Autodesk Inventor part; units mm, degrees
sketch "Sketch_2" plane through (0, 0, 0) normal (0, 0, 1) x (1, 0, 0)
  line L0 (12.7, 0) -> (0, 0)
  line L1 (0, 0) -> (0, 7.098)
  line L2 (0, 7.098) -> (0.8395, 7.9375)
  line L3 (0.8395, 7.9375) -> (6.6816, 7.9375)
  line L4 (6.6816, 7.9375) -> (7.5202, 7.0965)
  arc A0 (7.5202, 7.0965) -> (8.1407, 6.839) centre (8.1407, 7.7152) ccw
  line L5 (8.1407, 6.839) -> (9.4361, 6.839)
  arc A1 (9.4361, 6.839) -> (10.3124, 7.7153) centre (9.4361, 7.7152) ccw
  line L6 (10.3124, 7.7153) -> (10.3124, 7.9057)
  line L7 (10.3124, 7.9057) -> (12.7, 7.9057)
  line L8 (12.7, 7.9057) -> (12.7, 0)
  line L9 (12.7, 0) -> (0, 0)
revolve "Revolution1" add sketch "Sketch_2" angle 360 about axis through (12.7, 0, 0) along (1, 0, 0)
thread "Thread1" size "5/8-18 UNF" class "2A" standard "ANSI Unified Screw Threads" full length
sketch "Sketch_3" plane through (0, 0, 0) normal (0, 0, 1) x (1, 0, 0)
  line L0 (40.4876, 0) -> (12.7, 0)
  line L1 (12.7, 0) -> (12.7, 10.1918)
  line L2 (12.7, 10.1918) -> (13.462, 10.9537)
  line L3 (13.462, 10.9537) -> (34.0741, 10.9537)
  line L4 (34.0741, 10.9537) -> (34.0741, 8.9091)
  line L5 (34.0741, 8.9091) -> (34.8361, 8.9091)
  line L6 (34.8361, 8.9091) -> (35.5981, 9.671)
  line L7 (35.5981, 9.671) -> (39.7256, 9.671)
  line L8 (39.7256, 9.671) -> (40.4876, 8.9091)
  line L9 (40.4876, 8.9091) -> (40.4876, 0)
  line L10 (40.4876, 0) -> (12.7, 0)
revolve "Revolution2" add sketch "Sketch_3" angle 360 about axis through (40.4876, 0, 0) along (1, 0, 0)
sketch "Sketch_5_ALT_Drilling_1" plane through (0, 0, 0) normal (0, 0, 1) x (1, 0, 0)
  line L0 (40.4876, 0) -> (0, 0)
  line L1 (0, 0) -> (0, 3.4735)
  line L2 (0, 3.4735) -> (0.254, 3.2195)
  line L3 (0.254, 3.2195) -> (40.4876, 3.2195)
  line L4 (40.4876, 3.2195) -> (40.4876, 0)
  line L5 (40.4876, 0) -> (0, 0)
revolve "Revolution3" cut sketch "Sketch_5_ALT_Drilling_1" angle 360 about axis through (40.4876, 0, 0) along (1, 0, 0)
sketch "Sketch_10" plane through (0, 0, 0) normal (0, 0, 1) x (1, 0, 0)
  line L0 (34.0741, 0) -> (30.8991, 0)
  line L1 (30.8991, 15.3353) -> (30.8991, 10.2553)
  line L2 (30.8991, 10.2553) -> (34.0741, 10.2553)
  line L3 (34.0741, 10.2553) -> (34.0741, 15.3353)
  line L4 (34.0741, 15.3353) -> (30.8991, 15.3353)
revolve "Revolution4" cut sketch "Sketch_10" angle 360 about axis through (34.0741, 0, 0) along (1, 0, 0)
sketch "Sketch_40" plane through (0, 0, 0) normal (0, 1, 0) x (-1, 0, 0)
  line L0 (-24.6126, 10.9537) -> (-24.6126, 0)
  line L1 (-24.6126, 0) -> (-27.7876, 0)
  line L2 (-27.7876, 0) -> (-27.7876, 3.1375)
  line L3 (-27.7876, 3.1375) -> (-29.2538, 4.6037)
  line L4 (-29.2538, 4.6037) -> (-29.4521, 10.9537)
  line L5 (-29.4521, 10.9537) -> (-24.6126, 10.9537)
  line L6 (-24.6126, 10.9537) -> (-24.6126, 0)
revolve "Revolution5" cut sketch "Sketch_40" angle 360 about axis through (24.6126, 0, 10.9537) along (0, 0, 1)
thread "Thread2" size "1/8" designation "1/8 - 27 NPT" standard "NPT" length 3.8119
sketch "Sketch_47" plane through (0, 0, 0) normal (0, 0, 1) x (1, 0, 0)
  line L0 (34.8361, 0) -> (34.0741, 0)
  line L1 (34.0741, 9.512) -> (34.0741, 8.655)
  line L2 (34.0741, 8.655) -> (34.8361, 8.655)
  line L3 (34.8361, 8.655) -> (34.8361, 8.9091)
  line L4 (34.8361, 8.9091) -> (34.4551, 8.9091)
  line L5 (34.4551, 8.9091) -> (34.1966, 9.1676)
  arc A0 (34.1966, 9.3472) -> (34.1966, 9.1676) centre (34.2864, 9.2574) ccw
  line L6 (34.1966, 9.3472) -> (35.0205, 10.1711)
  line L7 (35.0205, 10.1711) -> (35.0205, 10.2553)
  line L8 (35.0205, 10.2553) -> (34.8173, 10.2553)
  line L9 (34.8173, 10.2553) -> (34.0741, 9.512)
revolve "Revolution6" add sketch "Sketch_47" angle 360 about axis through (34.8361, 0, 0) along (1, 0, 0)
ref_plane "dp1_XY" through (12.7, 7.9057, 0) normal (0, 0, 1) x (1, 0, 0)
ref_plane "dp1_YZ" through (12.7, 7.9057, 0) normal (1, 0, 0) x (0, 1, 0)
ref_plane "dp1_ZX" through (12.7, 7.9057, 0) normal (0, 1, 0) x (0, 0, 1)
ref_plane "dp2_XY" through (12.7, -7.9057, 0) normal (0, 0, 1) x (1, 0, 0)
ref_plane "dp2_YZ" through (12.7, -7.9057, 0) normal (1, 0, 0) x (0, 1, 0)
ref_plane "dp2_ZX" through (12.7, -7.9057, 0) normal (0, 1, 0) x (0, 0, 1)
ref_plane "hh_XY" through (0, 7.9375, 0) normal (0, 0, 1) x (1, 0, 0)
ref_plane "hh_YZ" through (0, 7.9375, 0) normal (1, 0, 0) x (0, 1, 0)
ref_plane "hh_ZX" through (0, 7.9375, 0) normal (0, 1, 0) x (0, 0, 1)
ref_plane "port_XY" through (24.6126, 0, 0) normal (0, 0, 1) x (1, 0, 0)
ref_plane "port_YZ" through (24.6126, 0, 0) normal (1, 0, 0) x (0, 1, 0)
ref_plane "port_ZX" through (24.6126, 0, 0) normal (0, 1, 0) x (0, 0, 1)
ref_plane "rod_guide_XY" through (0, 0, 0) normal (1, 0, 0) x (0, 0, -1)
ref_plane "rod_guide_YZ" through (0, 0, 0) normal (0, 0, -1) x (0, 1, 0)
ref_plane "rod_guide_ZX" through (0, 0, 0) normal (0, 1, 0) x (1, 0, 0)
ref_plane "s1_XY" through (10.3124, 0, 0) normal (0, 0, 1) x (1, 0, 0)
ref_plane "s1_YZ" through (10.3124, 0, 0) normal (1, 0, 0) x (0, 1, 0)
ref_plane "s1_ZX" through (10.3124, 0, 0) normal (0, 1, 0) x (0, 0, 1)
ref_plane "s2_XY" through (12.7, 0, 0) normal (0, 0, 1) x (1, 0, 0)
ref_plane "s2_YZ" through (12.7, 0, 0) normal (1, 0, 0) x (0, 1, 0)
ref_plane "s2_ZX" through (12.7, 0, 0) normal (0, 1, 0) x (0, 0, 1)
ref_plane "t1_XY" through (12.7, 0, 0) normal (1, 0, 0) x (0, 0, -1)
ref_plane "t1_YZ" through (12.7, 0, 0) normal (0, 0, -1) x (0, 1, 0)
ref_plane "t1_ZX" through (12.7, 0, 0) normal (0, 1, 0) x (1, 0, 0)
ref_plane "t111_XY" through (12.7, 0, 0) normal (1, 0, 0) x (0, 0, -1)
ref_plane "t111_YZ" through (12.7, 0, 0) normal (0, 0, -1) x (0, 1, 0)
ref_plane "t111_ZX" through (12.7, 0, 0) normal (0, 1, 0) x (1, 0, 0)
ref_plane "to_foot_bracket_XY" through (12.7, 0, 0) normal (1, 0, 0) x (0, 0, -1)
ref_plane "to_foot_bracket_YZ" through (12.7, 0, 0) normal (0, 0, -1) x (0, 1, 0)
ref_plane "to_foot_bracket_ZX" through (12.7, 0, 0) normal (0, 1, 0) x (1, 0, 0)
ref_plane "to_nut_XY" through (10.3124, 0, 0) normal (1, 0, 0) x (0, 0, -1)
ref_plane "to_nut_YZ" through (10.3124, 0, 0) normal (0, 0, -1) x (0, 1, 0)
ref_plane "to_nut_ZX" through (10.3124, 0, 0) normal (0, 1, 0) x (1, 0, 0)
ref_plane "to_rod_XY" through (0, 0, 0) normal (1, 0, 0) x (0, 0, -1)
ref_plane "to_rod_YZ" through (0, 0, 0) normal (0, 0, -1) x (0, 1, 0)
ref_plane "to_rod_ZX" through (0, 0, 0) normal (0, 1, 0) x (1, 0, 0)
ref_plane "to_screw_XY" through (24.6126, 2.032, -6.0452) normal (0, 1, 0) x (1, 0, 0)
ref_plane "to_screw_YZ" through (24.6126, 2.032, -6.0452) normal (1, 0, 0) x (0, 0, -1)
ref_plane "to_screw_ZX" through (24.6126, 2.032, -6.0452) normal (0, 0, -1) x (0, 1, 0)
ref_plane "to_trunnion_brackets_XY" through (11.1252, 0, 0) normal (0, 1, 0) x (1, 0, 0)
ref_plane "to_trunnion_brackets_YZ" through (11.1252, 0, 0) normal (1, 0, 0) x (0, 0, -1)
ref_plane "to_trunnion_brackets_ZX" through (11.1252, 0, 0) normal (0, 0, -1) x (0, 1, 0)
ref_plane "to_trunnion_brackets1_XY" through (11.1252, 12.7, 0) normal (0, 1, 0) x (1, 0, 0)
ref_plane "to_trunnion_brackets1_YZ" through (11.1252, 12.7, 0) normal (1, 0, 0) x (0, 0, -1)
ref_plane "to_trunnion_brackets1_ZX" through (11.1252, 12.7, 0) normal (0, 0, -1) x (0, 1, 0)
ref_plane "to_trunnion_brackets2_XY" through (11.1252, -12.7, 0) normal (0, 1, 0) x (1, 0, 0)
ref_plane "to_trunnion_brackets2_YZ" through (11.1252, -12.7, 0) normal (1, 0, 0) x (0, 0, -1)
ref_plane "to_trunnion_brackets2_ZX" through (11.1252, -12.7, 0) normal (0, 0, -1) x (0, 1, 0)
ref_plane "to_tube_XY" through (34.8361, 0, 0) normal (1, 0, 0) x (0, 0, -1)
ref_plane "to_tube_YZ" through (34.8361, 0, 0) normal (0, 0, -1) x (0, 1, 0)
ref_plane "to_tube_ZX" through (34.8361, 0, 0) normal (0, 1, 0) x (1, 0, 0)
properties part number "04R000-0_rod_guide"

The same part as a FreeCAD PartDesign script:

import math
import FreeCAD as App
import Part
import Sketcher

V = App.Vector
Q = App.Units.Quantity

doc = App.newDocument("Part")
body = doc.addObject("PartDesign::Body", "Body")

sketch1 = doc.addObject("Sketcher::SketchObject", "Sketch")
body.addObject(sketch1)
sketch1.AttachmentSupport = (doc.XY_Plane, [""])
sketch1.MapMode = "FlatFace"
sketch1.addGeometry([
    Part.LineSegment(V(0, 0, 0), V(12.7, 0, 0)),
    Part.LineSegment(V(12.7, 0, 0), V(12.7, 7.9057, 0)),
    Part.LineSegment(V(12.7, 7.9057, 0), V(10.3124, 7.9057, 0)),
    Part.LineSegment(V(10.3124, 7.9057, 0), V(10.3124, 7.7153, 0)),
    Part.ArcOfCircle(Part.Circle(V(9.4361, 7.7152, 0), V(0, 0, 1), 0.8762), math.radians(-90), math.radians(0.006538)),
    Part.LineSegment(V(9.4361, 6.839, 0), V(8.1407, 6.839, 0)),
    Part.ArcOfCircle(Part.Circle(V(8.1407, 7.7152, 0), V(0, 0, 1), 0.876248), math.radians(-135.083225), math.radians(-90)),
    Part.LineSegment(V(7.5202, 7.0965, 0), V(6.6816, 7.9375, 0)),
    Part.LineSegment(V(6.6816, 7.9375, 0), V(0.8395, 7.9375, 0)),
    Part.LineSegment(V(0.8395, 7.9375, 0), V(0, 7.098, 0)),
    Part.LineSegment(V(0, 7.098, 0), V(0, 0, 0)),
], False)
sketch1.addConstraint([
    Sketcher.Constraint("Coincident", 0, 2, 1, 1),
    Sketcher.Constraint("Coincident", 1, 2, 2, 1),
    Sketcher.Constraint("Coincident", 2, 2, 3, 1),
    Sketcher.Constraint("Tangent", 3, 2, 4, 2),
    Sketcher.Constraint("Tangent", 4, 1, 5, 1),
    Sketcher.Constraint("Tangent", 5, 2, 6, 2),
    Sketcher.Constraint("Tangent", 6, 1, 7, 1),
    Sketcher.Constraint("Coincident", 7, 2, 8, 1),
    Sketcher.Constraint("Coincident", 8, 2, 9, 1),
    Sketcher.Constraint("Coincident", 9, 2, 10, 1),
    Sketcher.Constraint("Coincident", 10, 2, 0, 1),
    Sketcher.Constraint("Horizontal", 0),
    Sketcher.Constraint("Vertical", 1),
    Sketcher.Constraint("Horizontal", 2),
    Sketcher.Constraint("Vertical", 3),
    Sketcher.Constraint("Horizontal", 5),
    Sketcher.Constraint("Horizontal", 8),
    Sketcher.Constraint("Vertical", 10),
    Sketcher.Constraint("Coincident", 10, 2, -1, 1),
    Sketcher.Constraint("Equal", 4, 6),
    Sketcher.Constraint("DistanceX", 0, 1, 0, 2, Q("0.5 in")),
    Sketcher.Constraint("Angle", 9, Q("-135 deg")),
    Sketcher.Constraint("DistanceX", 8, 2, 8, 1, Q("0.23 in")),
    Sketcher.Constraint("Radius", 4, Q("0.0345 in")),
    Sketcher.Constraint("DistanceX", 2, 2, 2, 1, Q("0.094 in")),
    Sketcher.Constraint("DistanceX", 5, 2, 5, 1, Q("0.051 in")),
    Sketcher.Constraint("DistanceY", 3, 2, 3, 1, Q("0.0075 in")),
    Sketcher.Constraint("DistanceY", -1, 1, 7, 2, Q("0.3125 in")),
    Sketcher.Constraint("DistanceY", 1, 1, 1, 2, Q("7.9057 mm")),
    Sketcher.Constraint("DistanceY", 10, 2, 10, 1, Q("7.098 mm")),
])
revolution = doc.addObject("PartDesign::Revolution", "Revolution")
body.addObject(revolution)
revolution.Profile = sketch1
revolution.ReferenceAxis = (sketch1, ["H_Axis"])
revolution.Angle = 360

sketch2 = doc.addObject("Sketcher::SketchObject", "Sketch001")
body.addObject(sketch2)
sketch2.AttachmentSupport = (doc.XY_Plane, [""])
sketch2.MapMode = "FlatFace"
sketch2.addGeometry([
    Part.LineSegment(V(12.7, 0, 0), V(40.4876, 0, 0)),
    Part.LineSegment(V(40.4876, 0, 0), V(40.4876, 8.9091, 0)),
    Part.LineSegment(V(40.4876, 8.9091, 0), V(39.7256, 9.671, 0)),
    Part.LineSegment(V(39.7256, 9.671, 0), V(35.5981, 9.671, 0)),
    Part.LineSegment(V(35.5981, 9.671, 0), V(34.8361, 8.9091, 0)),
    Part.LineSegment(V(34.8361, 8.9091, 0), V(34.0741, 8.9091, 0)),
    Part.LineSegment(V(34.0741, 8.9091, 0), V(34.0741, 10.9537, 0)),
    Part.LineSegment(V(34.0741, 10.9537, 0), V(13.462, 10.9537, 0)),
    Part.LineSegment(V(13.462, 10.9537, 0), V(12.7, 10.1918, 0)),
    Part.LineSegment(V(12.7, 10.1918, 0), V(12.7, 0, 0)),
], False)
sketch2.addConstraint([
    Sketcher.Constraint("Coincident", 0, 2, 1, 1),
    Sketcher.Constraint("Coincident", 1, 2, 2, 1),
    Sketcher.Constraint("Coincident", 2, 2, 3, 1),
    Sketcher.Constraint("Coincident", 3, 2, 4, 1),
    Sketcher.Constraint("Coincident", 4, 2, 5, 1),
    Sketcher.Constraint("Coincident", 5, 2, 6, 1),
    Sketcher.Constraint("Coincident", 6, 2, 7, 1),
    Sketcher.Constraint("Coincident", 7, 2, 8, 1),
    Sketcher.Constraint("Coincident", 8, 2, 9, 1),
    Sketcher.Constraint("Coincident", 9, 2, 0, 1),
    Sketcher.Constraint("Horizontal", 0),
    Sketcher.Constraint("Vertical", 1),
    Sketcher.Constraint("Horizontal", 3),
    Sketcher.Constraint("Horizontal", 5),
    Sketcher.Constraint("Vertical", 6),
    Sketcher.Constraint("Horizontal", 7),
    Sketcher.Constraint("Vertical", 9),
    Sketcher.Constraint("PointOnObject", 0, 2, -1),
    Sketcher.Constraint("Perpendicular", 2, 4),
    Sketcher.Constraint("Parallel", 4, 8),
    Sketcher.Constraint("Horizontal", 1, 2, 4, 2),
    Sketcher.Constraint("Equal", 2, 4),
    Sketcher.Constraint("Equal", 4, 8),
    Sketcher.Constraint("DistanceX", 5, 2, 5, 1, Q("0.03 in")),
    Sketcher.Constraint("DistanceX", -1, 1, 8, 2, Q("0.5 in")),
    Sketcher.Constraint("DistanceX", 0, 1, 0, 2, Q("1.094 in")),
    Sketcher.Constraint("DistanceX", -1, 1, 7, 2, Q("0.53 in")),
    Sketcher.Constraint("DistanceX", 3, 2, 3, 1, Q("0.1625 in")),
    Sketcher.Constraint("DistanceY", 6, 1, 6, 2, Q("0.0805 in")),
    Sketcher.Constraint("DistanceY", 1, 1, 1, 2, Q("8.909 mm")),
])
revolution2 = doc.addObject("PartDesign::Revolution", "Revolution001")
body.addObject(revolution2)
revolution2.Profile = sketch2
revolution2.ReferenceAxis = (sketch2, ["H_Axis"])
revolution2.Angle = 360

sketch3 = doc.addObject("Sketcher::SketchObject", "Sketch002")
body.addObject(sketch3)
sketch3.AttachmentSupport = (doc.XY_Plane, [""])
sketch3.MapMode = "FlatFace"
sketch3.addGeometry([
    Part.LineSegment(V(0, 0, 0), V(40.4876, 0, 0)),
    Part.LineSegment(V(40.4876, 0, 0), V(40.4876, 3.2195, 0)),
    Part.LineSegment(V(40.4876, 3.2195, 0), V(0.254, 3.2195, 0)),
    Part.LineSegment(V(0.254, 3.2195, 0), V(0, 3.4735, 0)),
    Part.LineSegment(V(0, 3.4735, 0), V(0, 0, 0)),
], False)
sketch3.addConstraint([
    Sketcher.Constraint("Coincident", 0, 2, 1, 1),
    Sketcher.Constraint("Coincident", 1, 2, 2, 1),
    Sketcher.Constraint("Coincident", 2, 2, 3, 1),
    Sketcher.Constraint("Coincident", 3, 2, 4, 1),
    Sketcher.Constraint("Coincident", 4, 2, 0, 1),
    Sketcher.Constraint("Horizontal", 0),
    Sketcher.Constraint("Vertical", 1),
    Sketcher.Constraint("Horizontal", 2),
    Sketcher.Constraint("Vertical", 4),
    Sketcher.Constraint("Coincident", 4, 2, -1, 1),
    Sketcher.Constraint("Angle", 3, Q("135 deg")),
    Sketcher.Constraint("DistanceX", 0, 1, 0, 2, Q("1.594 in")),
    Sketcher.Constraint("DistanceX", 2, 2, 2, 1, Q("1.584 in")),
    Sketcher.Constraint("DistanceY", 1, 1, 1, 2, Q("3.2195 mm")),
])
groove = doc.addObject("PartDesign::Groove", "Groove")
body.addObject(groove)
groove.Profile = sketch3
groove.ReferenceAxis = (sketch3, ["H_Axis"])
groove.Angle = 360

sketch4 = doc.addObject("Sketcher::SketchObject", "Sketch003")
body.addObject(sketch4)
sketch4.AttachmentSupport = (doc.XY_Plane, [""])
sketch4.MapMode = "FlatFace"
sketch4.addGeometry([
    Part.LineSegment(V(34.0741, 15.3353, 0), V(30.8991, 15.3353, 0)),
    Part.LineSegment(V(30.8991, 15.3353, 0), V(30.8991, 10.2553, 0)),
    Part.LineSegment(V(30.8991, 10.2553, 0), V(34.0741, 10.2553, 0)),
    Part.LineSegment(V(34.0741, 10.2553, 0), V(34.0741, 15.3353, 0)),
], False)
sketch4.addConstraint([
    Sketcher.Constraint("Coincident", 0, 2, 1, 1),
    Sketcher.Constraint("Coincident", 1, 2, 2, 1),
    Sketcher.Constraint("Coincident", 2, 2, 3, 1),
    Sketcher.Constraint("Coincident", 3, 2, 0, 1),
    Sketcher.Constraint("Horizontal", 0),
    Sketcher.Constraint("Vertical", 1),
    Sketcher.Constraint("Horizontal", 2),
    Sketcher.Constraint("Vertical", 3),
    Sketcher.Constraint("DistanceY", 1, 2, 1, 1, Q("0.2 in")),
    Sketcher.Constraint("DistanceX", 0, 2, 0, 1, Q("0.125 in")),
    Sketcher.Constraint("DistanceX", -1, 1, 0, 2, Q("1.2165 in")),
    Sketcher.Constraint("DistanceY", -1, 1, 0, 2, Q("15.3353 mm")),
])
groove2 = doc.addObject("PartDesign::Groove", "Groove001")
body.addObject(groove2)
groove2.Profile = sketch4
groove2.ReferenceAxis = (sketch4, ["H_Axis"])
groove2.Angle = 360

sketch5 = doc.addObject("Sketcher::SketchObject", "Sketch004")
body.addObject(sketch5)
sketch5.AttachmentSupport = (doc.XZ_Plane, [""])
sketch5.MapMode = "FlatFace"
sketch5.addGeometry([
    Part.LineSegment(V(24.6126, 0, 0), V(24.6126, 10.9537, 0)),
    Part.LineSegment(V(24.6126, 10.9537, 0), V(29.4521, 10.9537, 0)),
    Part.LineSegment(V(29.4521, 10.9537, 0), V(29.2538, 4.6037, 0)),
    Part.LineSegment(V(29.2538, 4.6037, 0), V(27.7876, 3.1375, 0)),
    Part.LineSegment(V(27.7876, 3.1375, 0), V(27.7876, 0, 0)),
    Part.LineSegment(V(27.7876, 0, 0), V(24.6126, 0, 0)),
], False)
sketch5.addGeometry(Part.LineSegment(V(24.6126, 0, 0), V(24.6126, 10.9537, 0)), True)
sketch5.addConstraint([
    Sketcher.Constraint("Coincident", 0, 2, 1, 1),
    Sketcher.Constraint("Coincident", 1, 2, 2, 1),
    Sketcher.Constraint("Coincident", 2, 2, 3, 1),
    Sketcher.Constraint("Coincident", 3, 2, 4, 1),
    Sketcher.Constraint("Coincident", 4, 2, 5, 1),
    Sketcher.Constraint("Coincident", 5, 2, 0, 1),
    Sketcher.Constraint("Vertical", 0),
    Sketcher.Constraint("Horizontal", 1),
    Sketcher.Constraint("Vertical", 4),
    Sketcher.Constraint("Horizontal", 5),
    Sketcher.Constraint("Vertical", 6),
    Sketcher.Constraint("Coincident", 6, 1, 5, 2),
    Sketcher.Constraint("PointOnObject", 4, 2, -1),
    Sketcher.Constraint("Horizontal", 1, 2, 6, 2),
    Sketcher.Constraint("Angle", 3, Q("-135 deg")),
    Sketcher.Constraint("DistanceX", 5, 2, 5, 1, Q("0.125 in")),
    Sketcher.Constraint("DistanceY", 2, 2, 1, 2, Q("0.25 in")),
    Sketcher.Constraint("DistanceX", -1, 1, 0, 2, Q("0.969 in")),
    Sketcher.Constraint("DistanceX", 1, 1, 1, 2, Q("4.8395 mm")),
    Sketcher.Constraint("DistanceY", 0, 1, 0, 2, Q("10.9537 mm")),
    Sketcher.Constraint("DistanceY", 4, 2, 4, 1, Q("3.1375 mm")),
])
groove3 = doc.addObject("PartDesign::Groove", "Groove002")
body.addObject(groove3)
groove3.Profile = sketch5
groove3.ReferenceAxis = (sketch5, ["Axis0"])
groove3.Angle = 360

sketch6 = doc.addObject("Sketcher::SketchObject", "Sketch005")
body.addObject(sketch6)
sketch6.AttachmentSupport = (doc.XY_Plane, [""])
sketch6.MapMode = "FlatFace"
sketch6.addGeometry([
    Part.LineSegment(V(34.8173, 10.2553, 0), V(34.0741, 9.512, 0)),
    Part.LineSegment(V(34.0741, 9.512, 0), V(34.0741, 8.655, 0)),
    Part.LineSegment(V(34.0741, 8.655, 0), V(34.8361, 8.655, 0)),
    Part.LineSegment(V(34.8361, 8.655, 0), V(34.8361, 8.9091, 0)),
    Part.LineSegment(V(34.8361, 8.9091, 0), V(34.4551, 8.9091, 0)),
    Part.LineSegment(V(34.4551, 8.9091, 0), V(34.1966, 9.1676, 0)),
    Part.ArcOfCircle(Part.Circle(V(34.2864, 9.2574, 0), V(0, 0, 1), 0.126996), math.radians(135), math.radians(225)),
    Part.LineSegment(V(34.1966, 9.3472, 0), V(35.0205, 10.1711, 0)),
    Part.LineSegment(V(35.0205, 10.1711, 0), V(35.0205, 10.2553, 0)),
    Part.LineSegment(V(35.0205, 10.2553, 0), V(34.8173, 10.2553, 0)),
], False)
sketch6.addConstraint([
    Sketcher.Constraint("Coincident", 0, 2, 1, 1),
    Sketcher.Constraint("Coincident", 1, 2, 2, 1),
    Sketcher.Constraint("Coincident", 2, 2, 3, 1),
    Sketcher.Constraint("Coincident", 3, 2, 4, 1),
    Sketcher.Constraint("Coincident", 4, 2, 5, 1),
    Sketcher.Constraint("Tangent", 5, 2, 6, 2),
    Sketcher.Constraint("Tangent", 6, 1, 7, 1),
    Sketcher.Constraint("Coincident", 7, 2, 8, 1),
    Sketcher.Constraint("Coincident", 8, 2, 9, 1),
    Sketcher.Constraint("Coincident", 9, 2, 0, 1),
    Sketcher.Constraint("Vertical", 1),
    Sketcher.Constraint("Horizontal", 2),
    Sketcher.Constraint("Vertical", 3),
    Sketcher.Constraint("Horizontal", 4),
    Sketcher.Constraint("Vertical", 8),
    Sketcher.Constraint("Horizontal", 9),
    Sketcher.Constraint("Perpendicular", 0, 5),
    Sketcher.Constraint("Perpendicular", 5, 7),
    Sketcher.Constraint("Vertical", 5, 2, 6, 1),
    Sketcher.Constraint("Radius", 6, Q("0.005 in")),
    Sketcher.Constraint("DistanceX", 2, 1, 2, 2, Q("0.03 in")),
    Sketcher.Constraint("DistanceY", 3, 1, 3, 2, Q("0.01 in")),
    Sketcher.Constraint("DistanceX", 4, 2, 4, 1, Q("0.015 in")),
    Sketcher.Constraint("DistanceX", 9, 2, 9, 1, Q("0.008 in")),
    Sketcher.Constraint("DistanceY", -1, 1, 6, 1, Q("0.368 in")),
    Sketcher.Constraint("DistanceY", 3, 2, 8, 2, Q("0.053 in")),
    Sketcher.Constraint("Distance", 5, Q("0.0144 in")),
    Sketcher.Constraint("DistanceY", 1, 2, 1, 1, Q("0.857 mm")),
    Sketcher.Constraint("DistanceX", -1, 1, 0, 2, Q("1.3415 in")),
])
revolution3 = doc.addObject("PartDesign::Revolution", "Revolution002")
body.addObject(revolution3)
revolution3.Profile = sketch6
revolution3.ReferenceAxis = (sketch6, ["H_Axis"])
revolution3.Angle = 360

doc.recompute()
